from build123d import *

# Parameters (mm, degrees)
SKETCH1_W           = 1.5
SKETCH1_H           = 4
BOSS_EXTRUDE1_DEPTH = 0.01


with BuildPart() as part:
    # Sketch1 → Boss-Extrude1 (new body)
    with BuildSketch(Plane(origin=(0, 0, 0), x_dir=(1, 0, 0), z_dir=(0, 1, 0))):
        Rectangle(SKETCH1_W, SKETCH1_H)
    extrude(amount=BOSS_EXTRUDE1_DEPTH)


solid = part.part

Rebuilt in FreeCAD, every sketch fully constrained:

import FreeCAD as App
import Part
import Sketcher

V = App.Vector
Q = App.Units.Quantity

doc = App.newDocument("Part")
body = doc.addObject("PartDesign::Body", "Body")

sketch1 = body.newObject("Sketcher::SketchObject", "Sketch")
sketch1.AttachmentSupport = (doc.getObject("XZ_Plane"), [""])
sketch1.MapMode = "FlatFace"
sketch1.addGeometry(Part.LineSegment(V(-0.8, -2, 0), V(-0.8, 2, 0)), False)
sketch1.addGeometry(Part.LineSegment(V(-0.8, 2, 0), V(0.8, 2, 0)), False)
sketch1.addGeometry(Part.LineSegment(V(0.8, 2, 0), V(0.8, -2, 0)), False)
sketch1.addGeometry(Part.LineSegment(V(0.8, -2, 0), V(-0.8, -2, 0)), False)
sketch1.addConstraint(Sketcher.Constraint("Coincident", 0, 2, 1, 1))
sketch1.addConstraint(Sketcher.Constraint("Coincident", 1, 2, 2, 1))
sketch1.addConstraint(Sketcher.Constraint("Coincident", 2, 2, 3, 1))
sketch1.addConstraint(Sketcher.Constraint("Coincident", 3, 2, 0, 1))
sketch1.addConstraint(Sketcher.Constraint("Vertical", 0))
sketch1.addConstraint(Sketcher.Constraint("Horizontal", 1))
sketch1.addConstraint(Sketcher.Constraint("Vertical", 2))
sketch1.addConstraint(Sketcher.Constraint("Horizontal", 3))
sketch1.addConstraint(Sketcher.Constraint("Symmetric", 0, 2, 2, 2, -1, 1))
sketch1.addConstraint(Sketcher.Constraint("DistanceY", 0, 1, 0, 2, Q("4 mm")))
sketch1.addConstraint(Sketcher.Constraint("DistanceX", 1, 1, 1, 2, Q("1.5 mm")))
pad1 = body.newObject("PartDesign::Pad", "Pad")
pad1.Profile = sketch1
pad1.Length = 0.01
pad1.Reversed = True

doc.recompute()
